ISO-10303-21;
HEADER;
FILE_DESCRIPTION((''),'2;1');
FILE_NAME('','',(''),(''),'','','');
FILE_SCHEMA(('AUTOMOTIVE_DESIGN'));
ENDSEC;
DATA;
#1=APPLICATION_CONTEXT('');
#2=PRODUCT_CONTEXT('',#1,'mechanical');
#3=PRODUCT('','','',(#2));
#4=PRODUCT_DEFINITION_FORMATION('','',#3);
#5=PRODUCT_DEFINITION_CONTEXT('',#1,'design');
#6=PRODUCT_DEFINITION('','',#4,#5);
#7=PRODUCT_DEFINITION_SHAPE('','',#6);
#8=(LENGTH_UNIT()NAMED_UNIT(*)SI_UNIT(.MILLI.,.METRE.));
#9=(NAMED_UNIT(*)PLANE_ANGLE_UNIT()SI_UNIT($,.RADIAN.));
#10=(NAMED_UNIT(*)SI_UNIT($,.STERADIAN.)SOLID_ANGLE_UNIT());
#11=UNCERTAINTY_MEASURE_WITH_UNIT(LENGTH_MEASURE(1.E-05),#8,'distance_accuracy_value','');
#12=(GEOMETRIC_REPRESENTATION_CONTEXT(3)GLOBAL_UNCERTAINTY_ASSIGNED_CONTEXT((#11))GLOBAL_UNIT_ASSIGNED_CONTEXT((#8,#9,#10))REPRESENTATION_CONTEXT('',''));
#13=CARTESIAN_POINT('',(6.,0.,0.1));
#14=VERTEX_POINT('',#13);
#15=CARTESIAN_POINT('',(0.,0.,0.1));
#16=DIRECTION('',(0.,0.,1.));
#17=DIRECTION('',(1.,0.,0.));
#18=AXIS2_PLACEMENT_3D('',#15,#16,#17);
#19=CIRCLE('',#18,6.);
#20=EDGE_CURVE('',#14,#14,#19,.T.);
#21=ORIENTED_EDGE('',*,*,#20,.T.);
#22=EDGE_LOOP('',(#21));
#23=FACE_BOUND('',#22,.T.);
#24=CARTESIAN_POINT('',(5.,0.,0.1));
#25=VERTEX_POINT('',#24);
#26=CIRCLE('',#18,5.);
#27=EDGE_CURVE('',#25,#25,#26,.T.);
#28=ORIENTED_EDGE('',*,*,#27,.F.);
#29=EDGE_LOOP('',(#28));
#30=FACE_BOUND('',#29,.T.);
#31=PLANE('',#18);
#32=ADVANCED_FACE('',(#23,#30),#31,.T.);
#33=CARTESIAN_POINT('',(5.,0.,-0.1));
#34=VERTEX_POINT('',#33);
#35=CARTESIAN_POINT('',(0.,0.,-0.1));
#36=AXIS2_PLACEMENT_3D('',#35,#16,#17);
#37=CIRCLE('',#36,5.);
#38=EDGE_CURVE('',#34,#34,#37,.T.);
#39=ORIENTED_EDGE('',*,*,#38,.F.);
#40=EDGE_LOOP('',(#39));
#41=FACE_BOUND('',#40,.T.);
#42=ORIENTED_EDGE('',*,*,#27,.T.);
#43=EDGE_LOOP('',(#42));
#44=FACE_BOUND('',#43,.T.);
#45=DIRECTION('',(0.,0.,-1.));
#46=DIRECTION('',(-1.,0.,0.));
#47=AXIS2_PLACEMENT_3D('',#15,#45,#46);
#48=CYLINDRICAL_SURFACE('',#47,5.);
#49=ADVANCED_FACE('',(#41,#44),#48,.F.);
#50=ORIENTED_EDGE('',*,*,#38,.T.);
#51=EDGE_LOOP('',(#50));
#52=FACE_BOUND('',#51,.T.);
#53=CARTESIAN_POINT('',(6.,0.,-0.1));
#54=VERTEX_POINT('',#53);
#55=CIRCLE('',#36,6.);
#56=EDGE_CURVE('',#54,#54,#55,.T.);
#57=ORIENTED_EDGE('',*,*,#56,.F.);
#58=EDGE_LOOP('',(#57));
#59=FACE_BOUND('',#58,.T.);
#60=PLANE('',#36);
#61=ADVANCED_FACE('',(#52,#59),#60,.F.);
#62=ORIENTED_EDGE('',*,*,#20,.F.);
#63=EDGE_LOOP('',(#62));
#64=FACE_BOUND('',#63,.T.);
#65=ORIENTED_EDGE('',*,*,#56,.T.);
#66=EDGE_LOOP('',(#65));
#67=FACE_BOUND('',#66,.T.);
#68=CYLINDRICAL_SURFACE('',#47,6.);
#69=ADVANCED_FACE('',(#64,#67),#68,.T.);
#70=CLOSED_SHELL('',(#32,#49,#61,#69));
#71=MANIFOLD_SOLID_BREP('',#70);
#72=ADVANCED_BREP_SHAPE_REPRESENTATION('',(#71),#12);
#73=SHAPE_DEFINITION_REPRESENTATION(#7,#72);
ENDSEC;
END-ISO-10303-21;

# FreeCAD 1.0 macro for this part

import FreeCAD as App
import Part
import Sketcher
Q = App.Units.Quantity

doc = App.newDocument("Part")
body = doc.addObject("PartDesign::Body", "Body")

# Sketch on XY plane
sketch1 = body.newObject("Sketcher::SketchObject", "Sketch")
sketch1.AttachmentSupport = (doc.getObject("XY_Plane"), [""])
sketch1.MapMode = "FlatFace"
sketch1.addGeometry([
    Part.Circle(App.Vector(0, 0, 0), App.Vector(0, 0, 1), 6),
    Part.Circle(App.Vector(0, 0, 0), App.Vector(0, 0, 1), 5),
], False)
sketch1.addConstraint([
    Sketcher.Constraint("Coincident", 0, 3, -1, 1),
    Sketcher.Constraint("Coincident", 1, 3, -1, 1),
    Sketcher.Constraint("Diameter", 0, Q("12 mm")),
    Sketcher.Constraint("Diameter", 1, Q("10 mm")),
])
pad1 = body.newObject("PartDesign::Pad", "Pad")
pad1.Profile = sketch1
pad1.Length = 0.2
pad1.Midplane = True

doc.recompute()
